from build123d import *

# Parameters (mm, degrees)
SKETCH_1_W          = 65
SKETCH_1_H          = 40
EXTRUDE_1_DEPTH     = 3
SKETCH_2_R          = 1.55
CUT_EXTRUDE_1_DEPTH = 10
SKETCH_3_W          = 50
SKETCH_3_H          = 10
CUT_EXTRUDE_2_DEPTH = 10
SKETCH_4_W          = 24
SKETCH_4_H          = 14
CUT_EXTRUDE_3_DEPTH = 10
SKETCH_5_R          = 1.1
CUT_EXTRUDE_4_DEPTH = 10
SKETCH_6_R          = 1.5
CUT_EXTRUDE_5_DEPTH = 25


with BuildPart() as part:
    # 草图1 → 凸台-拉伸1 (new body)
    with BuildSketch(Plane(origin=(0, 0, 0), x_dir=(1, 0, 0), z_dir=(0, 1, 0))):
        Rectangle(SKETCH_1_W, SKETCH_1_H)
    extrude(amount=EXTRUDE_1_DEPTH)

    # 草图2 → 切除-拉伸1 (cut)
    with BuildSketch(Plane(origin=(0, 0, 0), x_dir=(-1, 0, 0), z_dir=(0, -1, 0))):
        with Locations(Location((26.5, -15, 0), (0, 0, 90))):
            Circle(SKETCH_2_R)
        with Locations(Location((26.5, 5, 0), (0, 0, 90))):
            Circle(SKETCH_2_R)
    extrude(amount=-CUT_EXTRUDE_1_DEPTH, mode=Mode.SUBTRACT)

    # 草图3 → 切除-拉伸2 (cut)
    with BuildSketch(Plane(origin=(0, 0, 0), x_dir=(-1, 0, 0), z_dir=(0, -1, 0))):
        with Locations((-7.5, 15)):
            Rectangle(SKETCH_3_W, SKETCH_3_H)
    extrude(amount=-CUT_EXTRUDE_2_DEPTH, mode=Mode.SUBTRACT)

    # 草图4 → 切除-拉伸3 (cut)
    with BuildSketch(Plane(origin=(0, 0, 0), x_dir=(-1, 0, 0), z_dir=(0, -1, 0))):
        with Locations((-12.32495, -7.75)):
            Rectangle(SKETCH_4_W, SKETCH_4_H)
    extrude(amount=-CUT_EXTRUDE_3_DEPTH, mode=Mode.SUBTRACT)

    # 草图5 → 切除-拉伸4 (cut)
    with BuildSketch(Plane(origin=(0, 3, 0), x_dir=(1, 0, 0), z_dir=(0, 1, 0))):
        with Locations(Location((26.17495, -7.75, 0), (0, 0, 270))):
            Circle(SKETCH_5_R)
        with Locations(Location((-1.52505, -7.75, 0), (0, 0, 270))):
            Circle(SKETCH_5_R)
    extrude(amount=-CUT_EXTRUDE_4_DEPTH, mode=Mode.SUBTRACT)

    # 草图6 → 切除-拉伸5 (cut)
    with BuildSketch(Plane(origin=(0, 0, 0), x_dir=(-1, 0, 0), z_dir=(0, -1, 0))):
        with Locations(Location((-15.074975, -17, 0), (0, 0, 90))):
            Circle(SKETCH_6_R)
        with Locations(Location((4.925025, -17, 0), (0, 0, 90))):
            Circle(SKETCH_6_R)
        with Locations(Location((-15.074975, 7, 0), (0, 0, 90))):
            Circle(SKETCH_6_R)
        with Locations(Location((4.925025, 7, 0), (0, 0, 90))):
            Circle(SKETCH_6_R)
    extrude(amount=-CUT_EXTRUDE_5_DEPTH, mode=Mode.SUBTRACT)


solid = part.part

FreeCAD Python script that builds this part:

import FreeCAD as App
import Part
import Sketcher

V = App.Vector
Q = App.Units.Quantity


def add_polygon(sketch, points):
    """Adds a closed chain of lines whose ends are joined by coincident constraints."""
    first, n = sketch.GeometryCount, len(points)
    for a, b in zip(points, points[1:] + points[:1]):
        sketch.addGeometry(Part.LineSegment(App.Vector(*a, 0), App.Vector(*b, 0)), False)
    for i in range(n):
        sketch.addConstraint(Sketcher.Constraint("Coincident", first + i, 2, first + (i + 1) % n, 1))

doc = App.newDocument("Part")
body = doc.addObject("PartDesign::Body", "Body")

# Sketch on XZ plane
sketch1 = body.newObject("Sketcher::SketchObject", "Sketch")
sketch1.AttachmentSupport = (doc.getObject("XZ_Plane"), [""])
sketch1.MapMode = "FlatFace"
add_polygon(sketch1, [(-32, -20), (-32, 20), (32, 20), (32, -20)])  # lines 0-3
sketch1.addConstraint([
    Sketcher.Constraint("Vertical", 0),
    Sketcher.Constraint("Horizontal", 1),
    Sketcher.Constraint("Vertical", 2),
    Sketcher.Constraint("Horizontal", 3),
    Sketcher.Constraint("Symmetric", 0, 2, 2, 2, -1, 1),
    Sketcher.Constraint("DistanceX", 1, 1, 1, 2, Q("65 mm")),
    Sketcher.Constraint("DistanceY", 0, 1, 0, 2, Q("40 mm")),
])
pad1 = body.newObject("PartDesign::Pad", "Pad")
pad1.Profile = sketch1
pad1.Length = 3
pad1.Reversed = True

# Sketch on XZ plane
sketch2 = body.newObject("Sketcher::SketchObject", "Sketch001")
sketch2.AttachmentSupport = (doc.getObject("XZ_Plane"), [""])
sketch2.MapMode = "FlatFace"
sketch2.addGeometry([
    Part.Circle(V(-26.5, 15, 0), V(0, 0, 1), 1.6),
    Part.Circle(V(-26.5, -5, 0), V(0, 0, 1), 1.6),
], False)
sketch2.addConstraint([
    Sketcher.Constraint("Equal", 0, 1),
    Sketcher.Constraint("Vertical", 0, 3, 1, 3),
    Sketcher.Constraint("Diameter", 0, Q("3.1 mm")),
    Sketcher.Constraint("DistanceY", -1, 1, 0, 3, Q("15 mm")),
    Sketcher.Constraint("DistanceY", 1, 3, -1, 1, Q("5 mm")),
    Sketcher.Constraint("DistanceX", 0, 3, -1, 1, Q("26.5 mm")),
])
pocket1 = body.newObject("PartDesign::Pocket", "Pocket")
pocket1.Profile = sketch2
pocket1.Length = 10

# Sketch on XZ plane
sketch3 = body.newObject("Sketcher::SketchObject", "Sketch002")
sketch3.AttachmentSupport = (doc.getObject("XZ_Plane"), [""])
sketch3.MapMode = "FlatFace"
add_polygon(sketch3, [(32, -20), (32, -10), (-18, -10), (-18, -20)])  # lines 0-3
sketch3.addConstraint([
    Sketcher.Constraint("Vertical", 0),
    Sketcher.Constraint("Horizontal", 1),
    Sketcher.Constraint("Vertical", 2),
    Sketcher.Constraint("Horizontal", 3),
    Sketcher.Constraint("DistanceX", 1, 2, 1, 1, Q("50 mm")),
    Sketcher.Constraint("DistanceY", 0, 1, 0, 2, Q("10 mm")),
    Sketcher.Constraint("DistanceY", 0, 2, -1, 1, Q("10 mm")),
    Sketcher.Constraint("DistanceX", -1, 1, 0, 2, Q("32.5 mm")),
])
pocket2 = body.newObject("PartDesign::Pocket", "Pocket001")
pocket2.Profile = sketch3
pocket2.Length = 10

# Sketch on XZ plane
sketch4 = body.newObject("Sketcher::SketchObject", "Sketch003")
sketch4.AttachmentSupport = (doc.getObject("XZ_Plane"), [""])
sketch4.MapMode = "FlatFace"
add_polygon(sketch4, [(24, 1), (24, 15), (0, 15), (0, 1)])  # lines 0-3
sketch4.addConstraint([
    Sketcher.Constraint("Vertical", 0),
    Sketcher.Constraint("Horizontal", 1),
    Sketcher.Constraint("Vertical", 2),
    Sketcher.Constraint("Horizontal", 3),
    Sketcher.Constraint("DistanceX", 1, 2, 1, 1, Q("24 mm")),
    Sketcher.Constraint("DistanceY", 0, 1, 0, 2, Q("14 mm")),
    Sketcher.Constraint("DistanceY", -1, 1, 0, 2, Q("14.75 mm")),
    Sketcher.Constraint("DistanceX", -1, 1, 0, 2, Q("24.32495 mm")),
])
pocket3 = body.newObject("PartDesign::Pocket", "Pocket002")
pocket3.Profile = sketch4
pocket3.Length = 10

# Sketch on XZ plane
sketch5 = body.newObject("Sketcher::SketchObject", "Sketch004")
sketch5.AttachmentSupport = (doc.getObject("XZ_Plane"), [""])
sketch5.MapMode = "FlatFace"
sketch5.AttachmentOffset = App.Placement(V(0, 0, -3), App.Rotation())
sketch5.addGeometry([
    Part.Circle(V(26.2, 7.8, 0), V(0, 0, 1), 1.1),
    Part.Circle(V(-1.5, 7.8, 0), V(0, 0, 1), 1.1),
], False)
sketch5.addConstraint([
    Sketcher.Constraint("Equal", 0, 1),
    Sketcher.Constraint("Horizontal", 0, 3, 1, 3),
    Sketcher.Constraint("Diameter", 0, Q("2.2 mm")),
    Sketcher.Constraint("DistanceX", 1, 3, 0, 3, Q("27.7 mm")),
    Sketcher.Constraint("DistanceY", -1, 1, 0, 3, Q("7.75 mm")),
    Sketcher.Constraint("DistanceX", -1, 1, 0, 3, Q("26.17495 mm")),
])
pocket4 = body.newObject("PartDesign::Pocket", "Pocket003")
pocket4.Profile = sketch5
pocket4.Length = 10
pocket4.Reversed = True

# Sketch on XZ plane
sketch6 = body.newObject("Sketcher::SketchObject", "Sketch005")
sketch6.AttachmentSupport = (doc.getObject("XZ_Plane"), [""])
sketch6.MapMode = "FlatFace"
sketch6.addGeometry([
    Part.Circle(V(15.1, 17, 0), V(0, 0, 1), 1.5),
    Part.Circle(V(-4.9, 17, 0), V(0, 0, 1), 1.5),
    Part.Circle(V(15.1, -7, 0), V(0, 0, 1), 1.5),
    Part.Circle(V(-4.9, -7, 0), V(0, 0, 1), 1.5),
], False)
sketch6.addConstraint([
    Sketcher.Constraint("Equal", 0, 1),
    Sketcher.Constraint("Equal", 1, 2),
    Sketcher.Constraint("Equal", 2, 3),
    Sketcher.Constraint("Horizontal", 0, 3, 1, 3),
    Sketcher.Constraint("Horizontal", 2, 3, 3, 3),
    Sketcher.Constraint("Vertical", 0, 3, 2, 3),
    Sketcher.Constraint("Vertical", 1, 3, 3, 3),
    Sketcher.Constraint("Diameter", 0, Q("3 mm")),
    Sketcher.Constraint("DistanceY", -1, 1, 0, 3, Q("17 mm")),
    Sketcher.Constraint("DistanceY", 2, 3, -1, 1, Q("7 mm")),
    Sketcher.Constraint("DistanceX", 1, 3, 0, 3, Q("20 mm")),
    Sketcher.Constraint("DistanceX", -1, 1, 0, 3, Q("15.074975 mm")),
])
pocket5 = body.newObject("PartDesign::Pocket", "Pocket004")
pocket5.Profile = sketch6
pocket5.Length = 25

doc.recompute()
